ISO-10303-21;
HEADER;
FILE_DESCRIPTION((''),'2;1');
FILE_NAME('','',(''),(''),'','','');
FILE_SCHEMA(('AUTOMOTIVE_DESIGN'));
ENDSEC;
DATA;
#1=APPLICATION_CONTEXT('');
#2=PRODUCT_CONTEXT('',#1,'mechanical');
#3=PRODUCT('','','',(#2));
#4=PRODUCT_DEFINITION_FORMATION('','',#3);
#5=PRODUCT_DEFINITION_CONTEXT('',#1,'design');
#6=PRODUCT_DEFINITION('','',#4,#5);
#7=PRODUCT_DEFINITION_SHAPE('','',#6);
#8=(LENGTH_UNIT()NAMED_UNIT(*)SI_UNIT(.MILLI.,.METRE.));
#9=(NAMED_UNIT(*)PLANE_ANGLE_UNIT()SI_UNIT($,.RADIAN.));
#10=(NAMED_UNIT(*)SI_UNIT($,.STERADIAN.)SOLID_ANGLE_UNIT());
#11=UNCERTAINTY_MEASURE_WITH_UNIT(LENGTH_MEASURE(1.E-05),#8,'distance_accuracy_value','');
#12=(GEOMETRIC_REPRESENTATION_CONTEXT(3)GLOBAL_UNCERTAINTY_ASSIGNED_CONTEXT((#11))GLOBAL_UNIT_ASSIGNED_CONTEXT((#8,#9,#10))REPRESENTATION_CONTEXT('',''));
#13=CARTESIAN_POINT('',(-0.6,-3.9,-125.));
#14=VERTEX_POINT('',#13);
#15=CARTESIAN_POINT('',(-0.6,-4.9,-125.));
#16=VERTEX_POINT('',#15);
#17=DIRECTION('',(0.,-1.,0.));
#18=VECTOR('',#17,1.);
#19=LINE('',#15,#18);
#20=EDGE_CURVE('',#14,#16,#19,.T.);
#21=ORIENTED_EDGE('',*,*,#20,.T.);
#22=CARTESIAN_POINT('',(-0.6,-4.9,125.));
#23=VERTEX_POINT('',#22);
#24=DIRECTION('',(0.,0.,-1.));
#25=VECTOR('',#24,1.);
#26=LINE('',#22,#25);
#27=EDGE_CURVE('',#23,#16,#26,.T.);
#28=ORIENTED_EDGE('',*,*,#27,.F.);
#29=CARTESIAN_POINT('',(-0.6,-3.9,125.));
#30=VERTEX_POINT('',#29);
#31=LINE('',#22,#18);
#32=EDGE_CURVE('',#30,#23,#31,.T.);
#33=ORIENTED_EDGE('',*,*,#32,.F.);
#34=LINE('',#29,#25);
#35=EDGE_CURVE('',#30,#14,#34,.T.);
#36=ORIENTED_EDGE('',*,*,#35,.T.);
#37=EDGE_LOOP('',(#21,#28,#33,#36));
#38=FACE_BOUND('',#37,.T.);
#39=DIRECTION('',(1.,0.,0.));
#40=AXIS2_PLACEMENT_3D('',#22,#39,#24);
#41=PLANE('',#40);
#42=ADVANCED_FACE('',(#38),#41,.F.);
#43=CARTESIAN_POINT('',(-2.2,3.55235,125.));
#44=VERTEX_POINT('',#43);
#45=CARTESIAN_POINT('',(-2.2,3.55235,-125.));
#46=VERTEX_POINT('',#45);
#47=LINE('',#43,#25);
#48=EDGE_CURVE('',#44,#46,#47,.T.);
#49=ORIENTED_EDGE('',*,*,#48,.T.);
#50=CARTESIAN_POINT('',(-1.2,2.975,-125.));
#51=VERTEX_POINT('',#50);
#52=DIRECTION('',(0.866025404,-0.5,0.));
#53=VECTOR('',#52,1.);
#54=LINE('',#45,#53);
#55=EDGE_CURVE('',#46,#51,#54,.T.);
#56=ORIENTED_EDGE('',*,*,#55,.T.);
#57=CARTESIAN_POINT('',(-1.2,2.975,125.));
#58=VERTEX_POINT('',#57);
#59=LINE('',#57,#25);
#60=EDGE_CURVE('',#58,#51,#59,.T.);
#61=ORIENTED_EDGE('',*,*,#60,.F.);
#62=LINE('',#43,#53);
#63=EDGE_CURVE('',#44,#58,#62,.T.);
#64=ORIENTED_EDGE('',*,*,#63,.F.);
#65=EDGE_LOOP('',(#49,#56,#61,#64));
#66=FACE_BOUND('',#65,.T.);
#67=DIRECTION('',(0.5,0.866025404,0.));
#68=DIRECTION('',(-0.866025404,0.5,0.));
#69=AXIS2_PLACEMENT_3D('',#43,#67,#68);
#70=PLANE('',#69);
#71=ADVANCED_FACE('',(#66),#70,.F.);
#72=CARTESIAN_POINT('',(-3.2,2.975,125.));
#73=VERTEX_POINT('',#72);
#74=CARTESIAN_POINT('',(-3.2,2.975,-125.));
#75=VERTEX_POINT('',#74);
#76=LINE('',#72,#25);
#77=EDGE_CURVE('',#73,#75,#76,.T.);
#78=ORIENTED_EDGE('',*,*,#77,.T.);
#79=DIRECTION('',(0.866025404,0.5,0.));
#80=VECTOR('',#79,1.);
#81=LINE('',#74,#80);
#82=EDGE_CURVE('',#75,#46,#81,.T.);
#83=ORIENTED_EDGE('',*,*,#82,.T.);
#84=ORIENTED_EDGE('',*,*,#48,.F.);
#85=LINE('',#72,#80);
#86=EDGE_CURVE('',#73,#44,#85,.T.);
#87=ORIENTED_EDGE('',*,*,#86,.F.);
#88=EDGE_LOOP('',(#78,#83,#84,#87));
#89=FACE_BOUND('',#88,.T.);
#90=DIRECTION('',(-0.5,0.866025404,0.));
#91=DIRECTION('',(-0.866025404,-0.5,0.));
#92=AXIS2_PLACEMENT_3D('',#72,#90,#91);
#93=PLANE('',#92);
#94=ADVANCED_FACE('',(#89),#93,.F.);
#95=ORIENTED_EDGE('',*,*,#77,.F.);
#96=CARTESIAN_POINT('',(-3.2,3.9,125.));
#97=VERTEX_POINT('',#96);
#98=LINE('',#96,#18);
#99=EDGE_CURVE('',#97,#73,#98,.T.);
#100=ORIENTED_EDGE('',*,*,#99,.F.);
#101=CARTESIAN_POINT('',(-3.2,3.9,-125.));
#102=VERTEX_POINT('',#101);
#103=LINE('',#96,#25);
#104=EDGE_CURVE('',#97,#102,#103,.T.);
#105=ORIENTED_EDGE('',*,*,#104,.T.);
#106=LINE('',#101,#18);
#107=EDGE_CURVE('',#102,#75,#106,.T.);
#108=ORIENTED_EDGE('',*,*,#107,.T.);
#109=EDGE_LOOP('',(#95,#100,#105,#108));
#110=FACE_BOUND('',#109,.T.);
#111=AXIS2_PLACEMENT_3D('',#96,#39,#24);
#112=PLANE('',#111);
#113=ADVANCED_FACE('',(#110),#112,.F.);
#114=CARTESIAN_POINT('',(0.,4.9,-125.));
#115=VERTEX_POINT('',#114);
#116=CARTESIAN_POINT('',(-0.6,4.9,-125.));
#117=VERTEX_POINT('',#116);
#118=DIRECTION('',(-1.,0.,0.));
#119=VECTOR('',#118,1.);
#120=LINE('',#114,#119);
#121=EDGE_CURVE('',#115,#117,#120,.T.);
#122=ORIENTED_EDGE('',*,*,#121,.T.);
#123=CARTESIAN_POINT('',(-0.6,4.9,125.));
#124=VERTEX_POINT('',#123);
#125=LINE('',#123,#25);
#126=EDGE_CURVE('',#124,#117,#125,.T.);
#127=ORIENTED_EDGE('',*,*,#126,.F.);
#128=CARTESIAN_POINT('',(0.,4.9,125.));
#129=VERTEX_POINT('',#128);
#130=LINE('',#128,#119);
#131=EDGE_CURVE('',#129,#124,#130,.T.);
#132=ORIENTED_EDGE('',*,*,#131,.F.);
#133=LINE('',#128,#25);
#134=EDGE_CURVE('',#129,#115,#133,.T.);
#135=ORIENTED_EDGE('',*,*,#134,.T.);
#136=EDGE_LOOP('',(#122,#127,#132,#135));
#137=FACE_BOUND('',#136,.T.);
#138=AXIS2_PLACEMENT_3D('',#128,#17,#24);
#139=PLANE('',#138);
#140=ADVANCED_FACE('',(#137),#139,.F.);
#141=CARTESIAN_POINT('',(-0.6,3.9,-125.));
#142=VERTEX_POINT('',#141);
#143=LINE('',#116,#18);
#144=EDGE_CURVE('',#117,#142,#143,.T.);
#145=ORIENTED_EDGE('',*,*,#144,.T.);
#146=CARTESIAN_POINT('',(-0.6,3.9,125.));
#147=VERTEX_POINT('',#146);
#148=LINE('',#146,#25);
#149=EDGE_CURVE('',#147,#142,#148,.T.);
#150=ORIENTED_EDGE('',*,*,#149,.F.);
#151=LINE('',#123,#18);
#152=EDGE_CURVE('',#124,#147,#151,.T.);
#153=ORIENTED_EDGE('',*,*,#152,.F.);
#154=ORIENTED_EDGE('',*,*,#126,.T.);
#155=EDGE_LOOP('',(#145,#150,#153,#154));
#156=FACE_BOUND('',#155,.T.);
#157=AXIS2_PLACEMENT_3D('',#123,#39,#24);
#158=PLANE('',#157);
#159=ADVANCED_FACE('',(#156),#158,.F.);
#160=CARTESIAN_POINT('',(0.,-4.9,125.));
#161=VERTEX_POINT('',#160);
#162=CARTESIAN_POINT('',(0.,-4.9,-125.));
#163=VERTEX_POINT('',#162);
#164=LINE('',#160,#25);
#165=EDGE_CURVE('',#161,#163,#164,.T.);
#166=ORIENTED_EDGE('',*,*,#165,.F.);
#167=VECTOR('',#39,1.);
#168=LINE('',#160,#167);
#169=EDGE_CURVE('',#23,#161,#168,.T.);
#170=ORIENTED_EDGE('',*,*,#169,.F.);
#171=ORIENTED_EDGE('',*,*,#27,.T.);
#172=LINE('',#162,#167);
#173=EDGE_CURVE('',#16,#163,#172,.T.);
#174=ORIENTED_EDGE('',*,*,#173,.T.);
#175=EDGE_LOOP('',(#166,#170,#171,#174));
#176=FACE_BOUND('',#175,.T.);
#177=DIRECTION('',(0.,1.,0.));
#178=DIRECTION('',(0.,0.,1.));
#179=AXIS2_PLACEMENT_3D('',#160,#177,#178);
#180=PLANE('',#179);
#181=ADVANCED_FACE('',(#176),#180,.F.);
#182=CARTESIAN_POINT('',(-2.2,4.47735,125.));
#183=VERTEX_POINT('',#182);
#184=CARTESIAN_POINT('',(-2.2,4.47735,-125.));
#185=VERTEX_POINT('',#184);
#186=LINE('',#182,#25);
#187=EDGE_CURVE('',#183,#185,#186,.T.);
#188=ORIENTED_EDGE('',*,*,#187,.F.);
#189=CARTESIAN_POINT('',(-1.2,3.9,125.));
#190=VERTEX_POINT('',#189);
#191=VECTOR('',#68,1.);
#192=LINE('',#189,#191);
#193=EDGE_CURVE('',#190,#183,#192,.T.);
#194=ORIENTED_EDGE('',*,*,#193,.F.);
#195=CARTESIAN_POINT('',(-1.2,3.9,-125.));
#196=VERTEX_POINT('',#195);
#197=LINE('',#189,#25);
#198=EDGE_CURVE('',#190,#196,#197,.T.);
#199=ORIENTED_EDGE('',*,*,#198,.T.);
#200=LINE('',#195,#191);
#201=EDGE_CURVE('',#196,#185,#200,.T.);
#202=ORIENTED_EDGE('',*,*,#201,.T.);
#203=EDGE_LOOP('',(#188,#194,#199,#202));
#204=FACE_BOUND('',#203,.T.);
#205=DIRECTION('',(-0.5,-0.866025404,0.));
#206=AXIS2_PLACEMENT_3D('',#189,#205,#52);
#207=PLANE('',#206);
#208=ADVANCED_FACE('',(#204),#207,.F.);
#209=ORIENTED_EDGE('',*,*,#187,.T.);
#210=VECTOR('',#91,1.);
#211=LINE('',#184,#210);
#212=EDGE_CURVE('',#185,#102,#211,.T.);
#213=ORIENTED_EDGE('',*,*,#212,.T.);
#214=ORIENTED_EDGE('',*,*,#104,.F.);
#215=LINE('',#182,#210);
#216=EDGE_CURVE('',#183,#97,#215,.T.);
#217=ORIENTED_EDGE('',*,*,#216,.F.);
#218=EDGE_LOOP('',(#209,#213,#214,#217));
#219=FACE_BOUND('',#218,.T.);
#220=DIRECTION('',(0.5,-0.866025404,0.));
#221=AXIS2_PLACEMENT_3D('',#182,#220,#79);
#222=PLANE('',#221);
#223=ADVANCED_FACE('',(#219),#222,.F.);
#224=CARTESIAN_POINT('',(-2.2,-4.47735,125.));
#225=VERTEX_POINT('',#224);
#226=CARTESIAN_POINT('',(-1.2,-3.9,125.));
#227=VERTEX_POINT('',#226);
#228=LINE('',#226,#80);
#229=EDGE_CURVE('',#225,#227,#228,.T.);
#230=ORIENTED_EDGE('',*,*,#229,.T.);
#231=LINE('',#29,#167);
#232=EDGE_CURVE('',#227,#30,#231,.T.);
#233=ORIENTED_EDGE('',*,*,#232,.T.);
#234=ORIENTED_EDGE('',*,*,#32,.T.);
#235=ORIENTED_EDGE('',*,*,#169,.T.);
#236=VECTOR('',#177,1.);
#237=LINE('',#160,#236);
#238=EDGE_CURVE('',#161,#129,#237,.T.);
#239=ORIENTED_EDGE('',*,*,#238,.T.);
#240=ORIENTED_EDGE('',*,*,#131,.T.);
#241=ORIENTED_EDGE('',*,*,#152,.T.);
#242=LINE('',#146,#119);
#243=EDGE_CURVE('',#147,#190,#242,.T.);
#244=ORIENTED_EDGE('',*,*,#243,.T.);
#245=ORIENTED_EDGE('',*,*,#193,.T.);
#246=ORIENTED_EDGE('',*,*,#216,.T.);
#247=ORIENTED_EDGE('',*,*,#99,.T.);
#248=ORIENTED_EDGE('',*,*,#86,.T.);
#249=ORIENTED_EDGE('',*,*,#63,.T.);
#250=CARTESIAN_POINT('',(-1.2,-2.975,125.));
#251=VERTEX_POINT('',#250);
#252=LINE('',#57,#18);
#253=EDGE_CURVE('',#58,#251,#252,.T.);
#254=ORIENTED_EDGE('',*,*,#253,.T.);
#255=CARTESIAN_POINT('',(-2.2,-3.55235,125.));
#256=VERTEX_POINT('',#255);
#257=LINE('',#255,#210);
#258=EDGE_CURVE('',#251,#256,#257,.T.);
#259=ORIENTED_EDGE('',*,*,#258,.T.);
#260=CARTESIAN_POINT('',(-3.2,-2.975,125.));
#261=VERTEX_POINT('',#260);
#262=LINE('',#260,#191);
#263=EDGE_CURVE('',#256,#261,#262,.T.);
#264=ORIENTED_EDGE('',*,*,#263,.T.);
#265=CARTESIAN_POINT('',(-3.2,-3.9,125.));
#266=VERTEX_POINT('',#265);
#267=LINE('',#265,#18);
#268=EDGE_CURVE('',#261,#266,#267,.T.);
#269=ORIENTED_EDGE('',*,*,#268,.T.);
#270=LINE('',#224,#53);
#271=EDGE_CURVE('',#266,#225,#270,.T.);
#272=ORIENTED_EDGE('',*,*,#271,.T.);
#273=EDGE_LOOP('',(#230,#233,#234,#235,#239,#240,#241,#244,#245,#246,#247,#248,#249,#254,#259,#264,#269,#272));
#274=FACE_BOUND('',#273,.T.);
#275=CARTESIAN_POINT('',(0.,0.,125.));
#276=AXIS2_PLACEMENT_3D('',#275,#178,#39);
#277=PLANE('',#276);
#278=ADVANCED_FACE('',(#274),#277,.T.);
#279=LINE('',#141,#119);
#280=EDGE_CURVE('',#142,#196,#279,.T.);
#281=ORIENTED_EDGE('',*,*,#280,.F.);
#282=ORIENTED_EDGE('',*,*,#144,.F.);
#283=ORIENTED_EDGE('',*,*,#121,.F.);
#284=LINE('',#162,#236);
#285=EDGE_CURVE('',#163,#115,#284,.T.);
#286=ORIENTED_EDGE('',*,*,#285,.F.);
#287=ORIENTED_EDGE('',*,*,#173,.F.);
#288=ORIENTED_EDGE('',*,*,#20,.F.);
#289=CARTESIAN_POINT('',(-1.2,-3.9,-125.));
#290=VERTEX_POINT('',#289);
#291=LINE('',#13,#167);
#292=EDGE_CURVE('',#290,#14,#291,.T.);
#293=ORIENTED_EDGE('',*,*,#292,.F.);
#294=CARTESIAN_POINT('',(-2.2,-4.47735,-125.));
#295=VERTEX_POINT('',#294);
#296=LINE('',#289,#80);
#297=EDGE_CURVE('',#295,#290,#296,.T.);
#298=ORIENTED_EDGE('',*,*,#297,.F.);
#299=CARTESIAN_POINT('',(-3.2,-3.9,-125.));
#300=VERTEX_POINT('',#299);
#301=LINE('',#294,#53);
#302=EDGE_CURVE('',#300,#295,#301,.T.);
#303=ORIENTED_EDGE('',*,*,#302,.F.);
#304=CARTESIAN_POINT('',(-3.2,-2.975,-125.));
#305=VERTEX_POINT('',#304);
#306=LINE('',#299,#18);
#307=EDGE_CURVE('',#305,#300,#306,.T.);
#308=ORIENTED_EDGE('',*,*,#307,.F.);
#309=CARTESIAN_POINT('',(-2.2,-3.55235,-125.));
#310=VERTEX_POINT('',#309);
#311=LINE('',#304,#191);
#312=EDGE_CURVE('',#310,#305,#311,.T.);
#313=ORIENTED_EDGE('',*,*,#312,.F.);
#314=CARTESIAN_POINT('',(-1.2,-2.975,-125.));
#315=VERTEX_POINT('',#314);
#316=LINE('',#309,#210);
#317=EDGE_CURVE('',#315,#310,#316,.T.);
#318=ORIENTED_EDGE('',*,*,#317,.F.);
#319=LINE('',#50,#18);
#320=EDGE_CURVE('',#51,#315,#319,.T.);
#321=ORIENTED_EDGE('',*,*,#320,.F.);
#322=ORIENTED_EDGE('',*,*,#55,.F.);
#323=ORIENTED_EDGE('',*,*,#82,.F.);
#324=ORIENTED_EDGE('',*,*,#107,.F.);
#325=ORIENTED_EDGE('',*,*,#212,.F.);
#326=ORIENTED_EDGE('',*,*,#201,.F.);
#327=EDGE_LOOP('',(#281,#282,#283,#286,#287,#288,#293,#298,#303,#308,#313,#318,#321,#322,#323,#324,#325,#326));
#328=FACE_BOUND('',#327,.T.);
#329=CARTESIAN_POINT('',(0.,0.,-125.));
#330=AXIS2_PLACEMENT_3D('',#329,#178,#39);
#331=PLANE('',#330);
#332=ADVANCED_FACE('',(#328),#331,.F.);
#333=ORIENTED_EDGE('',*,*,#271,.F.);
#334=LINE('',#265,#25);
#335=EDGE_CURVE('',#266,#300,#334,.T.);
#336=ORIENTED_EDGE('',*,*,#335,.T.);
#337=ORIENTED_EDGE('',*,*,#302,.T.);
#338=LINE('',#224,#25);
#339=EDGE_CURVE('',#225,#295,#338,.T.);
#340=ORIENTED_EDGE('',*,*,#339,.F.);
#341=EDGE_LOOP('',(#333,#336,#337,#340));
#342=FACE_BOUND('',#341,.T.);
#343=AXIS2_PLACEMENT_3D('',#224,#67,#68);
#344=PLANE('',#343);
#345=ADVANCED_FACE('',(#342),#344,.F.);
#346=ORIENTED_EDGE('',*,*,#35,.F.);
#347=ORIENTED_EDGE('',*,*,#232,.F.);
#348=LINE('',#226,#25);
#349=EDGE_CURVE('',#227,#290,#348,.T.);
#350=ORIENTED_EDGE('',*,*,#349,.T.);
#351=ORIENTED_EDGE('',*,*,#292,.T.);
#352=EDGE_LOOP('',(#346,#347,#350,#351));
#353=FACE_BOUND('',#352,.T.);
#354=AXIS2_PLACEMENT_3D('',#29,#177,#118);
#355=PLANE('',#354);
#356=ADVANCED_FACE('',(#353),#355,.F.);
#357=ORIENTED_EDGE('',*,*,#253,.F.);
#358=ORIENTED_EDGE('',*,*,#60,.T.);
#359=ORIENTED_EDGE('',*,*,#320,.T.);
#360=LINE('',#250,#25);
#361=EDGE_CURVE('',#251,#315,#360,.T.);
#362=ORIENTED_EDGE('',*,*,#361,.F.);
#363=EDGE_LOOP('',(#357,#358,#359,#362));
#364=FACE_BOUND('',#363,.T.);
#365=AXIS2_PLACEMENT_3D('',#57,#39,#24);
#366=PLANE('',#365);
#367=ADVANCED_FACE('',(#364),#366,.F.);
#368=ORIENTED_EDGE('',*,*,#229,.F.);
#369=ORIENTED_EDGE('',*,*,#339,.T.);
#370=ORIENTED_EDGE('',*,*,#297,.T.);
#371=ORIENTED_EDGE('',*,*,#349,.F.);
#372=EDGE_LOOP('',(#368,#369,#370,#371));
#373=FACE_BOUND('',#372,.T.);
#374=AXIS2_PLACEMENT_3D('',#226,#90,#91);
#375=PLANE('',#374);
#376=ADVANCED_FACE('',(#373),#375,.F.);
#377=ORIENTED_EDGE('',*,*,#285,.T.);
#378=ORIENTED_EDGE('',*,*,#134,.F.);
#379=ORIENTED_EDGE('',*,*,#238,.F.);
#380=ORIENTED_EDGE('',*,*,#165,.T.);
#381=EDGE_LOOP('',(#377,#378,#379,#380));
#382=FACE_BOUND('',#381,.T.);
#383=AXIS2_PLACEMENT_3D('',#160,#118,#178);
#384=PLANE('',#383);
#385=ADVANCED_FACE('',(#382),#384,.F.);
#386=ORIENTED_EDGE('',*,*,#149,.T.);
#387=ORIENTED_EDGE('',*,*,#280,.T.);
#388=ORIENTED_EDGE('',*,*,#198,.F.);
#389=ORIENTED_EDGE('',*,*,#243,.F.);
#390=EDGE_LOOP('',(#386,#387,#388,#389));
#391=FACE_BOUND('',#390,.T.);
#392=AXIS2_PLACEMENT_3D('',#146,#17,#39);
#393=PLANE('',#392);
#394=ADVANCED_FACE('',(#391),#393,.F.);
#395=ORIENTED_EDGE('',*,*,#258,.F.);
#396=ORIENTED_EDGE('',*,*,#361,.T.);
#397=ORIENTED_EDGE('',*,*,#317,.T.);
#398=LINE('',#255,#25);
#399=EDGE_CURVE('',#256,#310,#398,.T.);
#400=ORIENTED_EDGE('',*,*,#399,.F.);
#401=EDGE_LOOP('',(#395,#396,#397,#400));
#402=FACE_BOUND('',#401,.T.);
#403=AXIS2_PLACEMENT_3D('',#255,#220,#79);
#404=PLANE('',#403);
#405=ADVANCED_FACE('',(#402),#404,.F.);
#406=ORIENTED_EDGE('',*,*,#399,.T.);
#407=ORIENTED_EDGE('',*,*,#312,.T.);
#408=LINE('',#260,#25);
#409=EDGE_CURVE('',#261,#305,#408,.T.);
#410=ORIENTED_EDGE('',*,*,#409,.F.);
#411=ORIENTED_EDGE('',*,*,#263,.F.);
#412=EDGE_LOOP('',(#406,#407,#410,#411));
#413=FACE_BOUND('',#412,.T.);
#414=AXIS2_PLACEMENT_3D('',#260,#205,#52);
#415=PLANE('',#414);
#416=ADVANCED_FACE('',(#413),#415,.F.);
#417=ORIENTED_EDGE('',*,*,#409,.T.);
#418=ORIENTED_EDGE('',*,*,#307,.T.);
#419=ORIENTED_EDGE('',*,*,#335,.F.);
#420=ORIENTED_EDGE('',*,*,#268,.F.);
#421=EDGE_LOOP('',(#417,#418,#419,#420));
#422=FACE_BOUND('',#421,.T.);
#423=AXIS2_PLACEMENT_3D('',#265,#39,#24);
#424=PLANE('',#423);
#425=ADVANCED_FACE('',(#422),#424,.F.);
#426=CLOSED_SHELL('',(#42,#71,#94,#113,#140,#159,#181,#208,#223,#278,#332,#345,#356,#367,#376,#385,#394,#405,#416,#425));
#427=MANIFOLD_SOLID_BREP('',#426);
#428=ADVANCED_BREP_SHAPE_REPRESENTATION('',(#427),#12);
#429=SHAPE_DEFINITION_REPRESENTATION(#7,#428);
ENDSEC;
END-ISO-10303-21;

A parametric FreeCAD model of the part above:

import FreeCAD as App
import Part
import Sketcher
from FreeCAD import Vector
Q = App.Units.Quantity


def add_polygon(sketch, points):
    """Adds a closed chain of lines whose ends are joined by coincident constraints."""
    first, n = sketch.GeometryCount, len(points)
    for a, b in zip(points, points[1:] + points[:1]):
        sketch.addGeometry(Part.LineSegment(App.Vector(*a, 0), App.Vector(*b, 0)), False)
    for i in range(n):
        sketch.addConstraint(Sketcher.Constraint("Coincident", first + i, 2, first + (i + 1) % n, 1))

doc = App.newDocument("Part")
body = doc.addObject("PartDesign::Body", "Body")

sketch1 = body.newObject("Sketcher::SketchObject", "Sketch")
sketch1.AttachmentSupport = (doc.getObject("XY_Plane"), [""])
sketch1.MapMode = "FlatFace"
add_polygon(sketch1, [(0, -4.9), (0, 4.9), (-0.6, 4.9), (-0.6, 3.9), (-1.2, 3.9), (-2.2, 4.47735), (-3.2, 3.9), (-3.2, 2.975), (-2.2, 3.55235), (-1.2, 2.975), (-1.2, -2.975), (-2.2, -3.55235), (-3.2, -2.975), (-3.2, -3.9), (-2.2, -4.47735), (-1.2, -3.9), (-0.6, -3.9), (-0.6, -4.9)])
sketch1.addConstraint(Sketcher.Constraint("Vertical", 0))
sketch1.addConstraint(Sketcher.Constraint("Horizontal", 1))
sketch1.addConstraint(Sketcher.Constraint("Vertical", 2))
sketch1.addConstraint(Sketcher.Constraint("Horizontal", 3))
sketch1.addConstraint(Sketcher.Constraint("Vertical", 6))
sketch1.addConstraint(Sketcher.Constraint("Vertical", 9))
sketch1.addConstraint(Sketcher.Constraint("Vertical", 12))
sketch1.addConstraint(Sketcher.Constraint("Horizontal", 15))
sketch1.addConstraint(Sketcher.Constraint("Vertical", 16))
sketch1.addConstraint(Sketcher.Constraint("Horizontal", 17))
sketch1.addConstraint(Sketcher.Constraint("Symmetric", 0, 2, 17, 2, -1, 1))
sketch1.addConstraint(Sketcher.Constraint("Symmetric", 7, 2, 10, 2, -1))
sketch1.addConstraint(Sketcher.Constraint("Symmetric", 6, 2, 11, 2, -1))
sketch1.addConstraint(Sketcher.Constraint("Symmetric", 4, 2, 13, 2, -1))
sketch1.addConstraint(Sketcher.Constraint("Symmetric", 3, 2, 14, 2, -1))
sketch1.addConstraint(Sketcher.Constraint("Parallel", 5, 7))
sketch1.addConstraint(Sketcher.Constraint("Parallel", 4, 8))
sketch1.addConstraint(Sketcher.Constraint("Parallel", 7, 10))
sketch1.addConstraint(Sketcher.Constraint("Parallel", 8, 11))
sketch1.addConstraint(Sketcher.Constraint("Parallel", 11, 13))
sketch1.addConstraint(Sketcher.Constraint("Horizontal", 3, 2, 5, 2))
sketch1.addConstraint(Sketcher.Constraint("Horizontal", 6, 2, 8, 2))
sketch1.addConstraint(Sketcher.Constraint("Vertical", 4, 2, 7, 2))
sketch1.addConstraint(Sketcher.Constraint("Vertical", 2, 2, 15, 2))
sketch1.addConstraint(Sketcher.Constraint("Equal", 1, 3))
sketch1.addConstraint(Sketcher.Constraint("DistanceY", 2, 2, 2, 1, 1.0))
sketch1.addConstraint(Sketcher.Constraint("Angle", 4, Q("150 deg")))
sketch1.addConstraint(Sketcher.Constraint("DistanceX", 1, 2, 1, 1, 0.6))
sketch1.addConstraint(Sketcher.Constraint("DistanceY", 0, 1, 0, 2, 9.8))
sketch1.addConstraint(Sketcher.Constraint("DistanceX", 4, 2, 3, 2, 1.0))
sketch1.addConstraint(Sketcher.Constraint("DistanceY", 9, 2, 9, 1, 5.95))
pad1 = body.newObject("PartDesign::Pad", "Pad")
pad1.Profile = sketch1
pad1.Length = 250
pad1.Midplane = True

doc.recompute()
